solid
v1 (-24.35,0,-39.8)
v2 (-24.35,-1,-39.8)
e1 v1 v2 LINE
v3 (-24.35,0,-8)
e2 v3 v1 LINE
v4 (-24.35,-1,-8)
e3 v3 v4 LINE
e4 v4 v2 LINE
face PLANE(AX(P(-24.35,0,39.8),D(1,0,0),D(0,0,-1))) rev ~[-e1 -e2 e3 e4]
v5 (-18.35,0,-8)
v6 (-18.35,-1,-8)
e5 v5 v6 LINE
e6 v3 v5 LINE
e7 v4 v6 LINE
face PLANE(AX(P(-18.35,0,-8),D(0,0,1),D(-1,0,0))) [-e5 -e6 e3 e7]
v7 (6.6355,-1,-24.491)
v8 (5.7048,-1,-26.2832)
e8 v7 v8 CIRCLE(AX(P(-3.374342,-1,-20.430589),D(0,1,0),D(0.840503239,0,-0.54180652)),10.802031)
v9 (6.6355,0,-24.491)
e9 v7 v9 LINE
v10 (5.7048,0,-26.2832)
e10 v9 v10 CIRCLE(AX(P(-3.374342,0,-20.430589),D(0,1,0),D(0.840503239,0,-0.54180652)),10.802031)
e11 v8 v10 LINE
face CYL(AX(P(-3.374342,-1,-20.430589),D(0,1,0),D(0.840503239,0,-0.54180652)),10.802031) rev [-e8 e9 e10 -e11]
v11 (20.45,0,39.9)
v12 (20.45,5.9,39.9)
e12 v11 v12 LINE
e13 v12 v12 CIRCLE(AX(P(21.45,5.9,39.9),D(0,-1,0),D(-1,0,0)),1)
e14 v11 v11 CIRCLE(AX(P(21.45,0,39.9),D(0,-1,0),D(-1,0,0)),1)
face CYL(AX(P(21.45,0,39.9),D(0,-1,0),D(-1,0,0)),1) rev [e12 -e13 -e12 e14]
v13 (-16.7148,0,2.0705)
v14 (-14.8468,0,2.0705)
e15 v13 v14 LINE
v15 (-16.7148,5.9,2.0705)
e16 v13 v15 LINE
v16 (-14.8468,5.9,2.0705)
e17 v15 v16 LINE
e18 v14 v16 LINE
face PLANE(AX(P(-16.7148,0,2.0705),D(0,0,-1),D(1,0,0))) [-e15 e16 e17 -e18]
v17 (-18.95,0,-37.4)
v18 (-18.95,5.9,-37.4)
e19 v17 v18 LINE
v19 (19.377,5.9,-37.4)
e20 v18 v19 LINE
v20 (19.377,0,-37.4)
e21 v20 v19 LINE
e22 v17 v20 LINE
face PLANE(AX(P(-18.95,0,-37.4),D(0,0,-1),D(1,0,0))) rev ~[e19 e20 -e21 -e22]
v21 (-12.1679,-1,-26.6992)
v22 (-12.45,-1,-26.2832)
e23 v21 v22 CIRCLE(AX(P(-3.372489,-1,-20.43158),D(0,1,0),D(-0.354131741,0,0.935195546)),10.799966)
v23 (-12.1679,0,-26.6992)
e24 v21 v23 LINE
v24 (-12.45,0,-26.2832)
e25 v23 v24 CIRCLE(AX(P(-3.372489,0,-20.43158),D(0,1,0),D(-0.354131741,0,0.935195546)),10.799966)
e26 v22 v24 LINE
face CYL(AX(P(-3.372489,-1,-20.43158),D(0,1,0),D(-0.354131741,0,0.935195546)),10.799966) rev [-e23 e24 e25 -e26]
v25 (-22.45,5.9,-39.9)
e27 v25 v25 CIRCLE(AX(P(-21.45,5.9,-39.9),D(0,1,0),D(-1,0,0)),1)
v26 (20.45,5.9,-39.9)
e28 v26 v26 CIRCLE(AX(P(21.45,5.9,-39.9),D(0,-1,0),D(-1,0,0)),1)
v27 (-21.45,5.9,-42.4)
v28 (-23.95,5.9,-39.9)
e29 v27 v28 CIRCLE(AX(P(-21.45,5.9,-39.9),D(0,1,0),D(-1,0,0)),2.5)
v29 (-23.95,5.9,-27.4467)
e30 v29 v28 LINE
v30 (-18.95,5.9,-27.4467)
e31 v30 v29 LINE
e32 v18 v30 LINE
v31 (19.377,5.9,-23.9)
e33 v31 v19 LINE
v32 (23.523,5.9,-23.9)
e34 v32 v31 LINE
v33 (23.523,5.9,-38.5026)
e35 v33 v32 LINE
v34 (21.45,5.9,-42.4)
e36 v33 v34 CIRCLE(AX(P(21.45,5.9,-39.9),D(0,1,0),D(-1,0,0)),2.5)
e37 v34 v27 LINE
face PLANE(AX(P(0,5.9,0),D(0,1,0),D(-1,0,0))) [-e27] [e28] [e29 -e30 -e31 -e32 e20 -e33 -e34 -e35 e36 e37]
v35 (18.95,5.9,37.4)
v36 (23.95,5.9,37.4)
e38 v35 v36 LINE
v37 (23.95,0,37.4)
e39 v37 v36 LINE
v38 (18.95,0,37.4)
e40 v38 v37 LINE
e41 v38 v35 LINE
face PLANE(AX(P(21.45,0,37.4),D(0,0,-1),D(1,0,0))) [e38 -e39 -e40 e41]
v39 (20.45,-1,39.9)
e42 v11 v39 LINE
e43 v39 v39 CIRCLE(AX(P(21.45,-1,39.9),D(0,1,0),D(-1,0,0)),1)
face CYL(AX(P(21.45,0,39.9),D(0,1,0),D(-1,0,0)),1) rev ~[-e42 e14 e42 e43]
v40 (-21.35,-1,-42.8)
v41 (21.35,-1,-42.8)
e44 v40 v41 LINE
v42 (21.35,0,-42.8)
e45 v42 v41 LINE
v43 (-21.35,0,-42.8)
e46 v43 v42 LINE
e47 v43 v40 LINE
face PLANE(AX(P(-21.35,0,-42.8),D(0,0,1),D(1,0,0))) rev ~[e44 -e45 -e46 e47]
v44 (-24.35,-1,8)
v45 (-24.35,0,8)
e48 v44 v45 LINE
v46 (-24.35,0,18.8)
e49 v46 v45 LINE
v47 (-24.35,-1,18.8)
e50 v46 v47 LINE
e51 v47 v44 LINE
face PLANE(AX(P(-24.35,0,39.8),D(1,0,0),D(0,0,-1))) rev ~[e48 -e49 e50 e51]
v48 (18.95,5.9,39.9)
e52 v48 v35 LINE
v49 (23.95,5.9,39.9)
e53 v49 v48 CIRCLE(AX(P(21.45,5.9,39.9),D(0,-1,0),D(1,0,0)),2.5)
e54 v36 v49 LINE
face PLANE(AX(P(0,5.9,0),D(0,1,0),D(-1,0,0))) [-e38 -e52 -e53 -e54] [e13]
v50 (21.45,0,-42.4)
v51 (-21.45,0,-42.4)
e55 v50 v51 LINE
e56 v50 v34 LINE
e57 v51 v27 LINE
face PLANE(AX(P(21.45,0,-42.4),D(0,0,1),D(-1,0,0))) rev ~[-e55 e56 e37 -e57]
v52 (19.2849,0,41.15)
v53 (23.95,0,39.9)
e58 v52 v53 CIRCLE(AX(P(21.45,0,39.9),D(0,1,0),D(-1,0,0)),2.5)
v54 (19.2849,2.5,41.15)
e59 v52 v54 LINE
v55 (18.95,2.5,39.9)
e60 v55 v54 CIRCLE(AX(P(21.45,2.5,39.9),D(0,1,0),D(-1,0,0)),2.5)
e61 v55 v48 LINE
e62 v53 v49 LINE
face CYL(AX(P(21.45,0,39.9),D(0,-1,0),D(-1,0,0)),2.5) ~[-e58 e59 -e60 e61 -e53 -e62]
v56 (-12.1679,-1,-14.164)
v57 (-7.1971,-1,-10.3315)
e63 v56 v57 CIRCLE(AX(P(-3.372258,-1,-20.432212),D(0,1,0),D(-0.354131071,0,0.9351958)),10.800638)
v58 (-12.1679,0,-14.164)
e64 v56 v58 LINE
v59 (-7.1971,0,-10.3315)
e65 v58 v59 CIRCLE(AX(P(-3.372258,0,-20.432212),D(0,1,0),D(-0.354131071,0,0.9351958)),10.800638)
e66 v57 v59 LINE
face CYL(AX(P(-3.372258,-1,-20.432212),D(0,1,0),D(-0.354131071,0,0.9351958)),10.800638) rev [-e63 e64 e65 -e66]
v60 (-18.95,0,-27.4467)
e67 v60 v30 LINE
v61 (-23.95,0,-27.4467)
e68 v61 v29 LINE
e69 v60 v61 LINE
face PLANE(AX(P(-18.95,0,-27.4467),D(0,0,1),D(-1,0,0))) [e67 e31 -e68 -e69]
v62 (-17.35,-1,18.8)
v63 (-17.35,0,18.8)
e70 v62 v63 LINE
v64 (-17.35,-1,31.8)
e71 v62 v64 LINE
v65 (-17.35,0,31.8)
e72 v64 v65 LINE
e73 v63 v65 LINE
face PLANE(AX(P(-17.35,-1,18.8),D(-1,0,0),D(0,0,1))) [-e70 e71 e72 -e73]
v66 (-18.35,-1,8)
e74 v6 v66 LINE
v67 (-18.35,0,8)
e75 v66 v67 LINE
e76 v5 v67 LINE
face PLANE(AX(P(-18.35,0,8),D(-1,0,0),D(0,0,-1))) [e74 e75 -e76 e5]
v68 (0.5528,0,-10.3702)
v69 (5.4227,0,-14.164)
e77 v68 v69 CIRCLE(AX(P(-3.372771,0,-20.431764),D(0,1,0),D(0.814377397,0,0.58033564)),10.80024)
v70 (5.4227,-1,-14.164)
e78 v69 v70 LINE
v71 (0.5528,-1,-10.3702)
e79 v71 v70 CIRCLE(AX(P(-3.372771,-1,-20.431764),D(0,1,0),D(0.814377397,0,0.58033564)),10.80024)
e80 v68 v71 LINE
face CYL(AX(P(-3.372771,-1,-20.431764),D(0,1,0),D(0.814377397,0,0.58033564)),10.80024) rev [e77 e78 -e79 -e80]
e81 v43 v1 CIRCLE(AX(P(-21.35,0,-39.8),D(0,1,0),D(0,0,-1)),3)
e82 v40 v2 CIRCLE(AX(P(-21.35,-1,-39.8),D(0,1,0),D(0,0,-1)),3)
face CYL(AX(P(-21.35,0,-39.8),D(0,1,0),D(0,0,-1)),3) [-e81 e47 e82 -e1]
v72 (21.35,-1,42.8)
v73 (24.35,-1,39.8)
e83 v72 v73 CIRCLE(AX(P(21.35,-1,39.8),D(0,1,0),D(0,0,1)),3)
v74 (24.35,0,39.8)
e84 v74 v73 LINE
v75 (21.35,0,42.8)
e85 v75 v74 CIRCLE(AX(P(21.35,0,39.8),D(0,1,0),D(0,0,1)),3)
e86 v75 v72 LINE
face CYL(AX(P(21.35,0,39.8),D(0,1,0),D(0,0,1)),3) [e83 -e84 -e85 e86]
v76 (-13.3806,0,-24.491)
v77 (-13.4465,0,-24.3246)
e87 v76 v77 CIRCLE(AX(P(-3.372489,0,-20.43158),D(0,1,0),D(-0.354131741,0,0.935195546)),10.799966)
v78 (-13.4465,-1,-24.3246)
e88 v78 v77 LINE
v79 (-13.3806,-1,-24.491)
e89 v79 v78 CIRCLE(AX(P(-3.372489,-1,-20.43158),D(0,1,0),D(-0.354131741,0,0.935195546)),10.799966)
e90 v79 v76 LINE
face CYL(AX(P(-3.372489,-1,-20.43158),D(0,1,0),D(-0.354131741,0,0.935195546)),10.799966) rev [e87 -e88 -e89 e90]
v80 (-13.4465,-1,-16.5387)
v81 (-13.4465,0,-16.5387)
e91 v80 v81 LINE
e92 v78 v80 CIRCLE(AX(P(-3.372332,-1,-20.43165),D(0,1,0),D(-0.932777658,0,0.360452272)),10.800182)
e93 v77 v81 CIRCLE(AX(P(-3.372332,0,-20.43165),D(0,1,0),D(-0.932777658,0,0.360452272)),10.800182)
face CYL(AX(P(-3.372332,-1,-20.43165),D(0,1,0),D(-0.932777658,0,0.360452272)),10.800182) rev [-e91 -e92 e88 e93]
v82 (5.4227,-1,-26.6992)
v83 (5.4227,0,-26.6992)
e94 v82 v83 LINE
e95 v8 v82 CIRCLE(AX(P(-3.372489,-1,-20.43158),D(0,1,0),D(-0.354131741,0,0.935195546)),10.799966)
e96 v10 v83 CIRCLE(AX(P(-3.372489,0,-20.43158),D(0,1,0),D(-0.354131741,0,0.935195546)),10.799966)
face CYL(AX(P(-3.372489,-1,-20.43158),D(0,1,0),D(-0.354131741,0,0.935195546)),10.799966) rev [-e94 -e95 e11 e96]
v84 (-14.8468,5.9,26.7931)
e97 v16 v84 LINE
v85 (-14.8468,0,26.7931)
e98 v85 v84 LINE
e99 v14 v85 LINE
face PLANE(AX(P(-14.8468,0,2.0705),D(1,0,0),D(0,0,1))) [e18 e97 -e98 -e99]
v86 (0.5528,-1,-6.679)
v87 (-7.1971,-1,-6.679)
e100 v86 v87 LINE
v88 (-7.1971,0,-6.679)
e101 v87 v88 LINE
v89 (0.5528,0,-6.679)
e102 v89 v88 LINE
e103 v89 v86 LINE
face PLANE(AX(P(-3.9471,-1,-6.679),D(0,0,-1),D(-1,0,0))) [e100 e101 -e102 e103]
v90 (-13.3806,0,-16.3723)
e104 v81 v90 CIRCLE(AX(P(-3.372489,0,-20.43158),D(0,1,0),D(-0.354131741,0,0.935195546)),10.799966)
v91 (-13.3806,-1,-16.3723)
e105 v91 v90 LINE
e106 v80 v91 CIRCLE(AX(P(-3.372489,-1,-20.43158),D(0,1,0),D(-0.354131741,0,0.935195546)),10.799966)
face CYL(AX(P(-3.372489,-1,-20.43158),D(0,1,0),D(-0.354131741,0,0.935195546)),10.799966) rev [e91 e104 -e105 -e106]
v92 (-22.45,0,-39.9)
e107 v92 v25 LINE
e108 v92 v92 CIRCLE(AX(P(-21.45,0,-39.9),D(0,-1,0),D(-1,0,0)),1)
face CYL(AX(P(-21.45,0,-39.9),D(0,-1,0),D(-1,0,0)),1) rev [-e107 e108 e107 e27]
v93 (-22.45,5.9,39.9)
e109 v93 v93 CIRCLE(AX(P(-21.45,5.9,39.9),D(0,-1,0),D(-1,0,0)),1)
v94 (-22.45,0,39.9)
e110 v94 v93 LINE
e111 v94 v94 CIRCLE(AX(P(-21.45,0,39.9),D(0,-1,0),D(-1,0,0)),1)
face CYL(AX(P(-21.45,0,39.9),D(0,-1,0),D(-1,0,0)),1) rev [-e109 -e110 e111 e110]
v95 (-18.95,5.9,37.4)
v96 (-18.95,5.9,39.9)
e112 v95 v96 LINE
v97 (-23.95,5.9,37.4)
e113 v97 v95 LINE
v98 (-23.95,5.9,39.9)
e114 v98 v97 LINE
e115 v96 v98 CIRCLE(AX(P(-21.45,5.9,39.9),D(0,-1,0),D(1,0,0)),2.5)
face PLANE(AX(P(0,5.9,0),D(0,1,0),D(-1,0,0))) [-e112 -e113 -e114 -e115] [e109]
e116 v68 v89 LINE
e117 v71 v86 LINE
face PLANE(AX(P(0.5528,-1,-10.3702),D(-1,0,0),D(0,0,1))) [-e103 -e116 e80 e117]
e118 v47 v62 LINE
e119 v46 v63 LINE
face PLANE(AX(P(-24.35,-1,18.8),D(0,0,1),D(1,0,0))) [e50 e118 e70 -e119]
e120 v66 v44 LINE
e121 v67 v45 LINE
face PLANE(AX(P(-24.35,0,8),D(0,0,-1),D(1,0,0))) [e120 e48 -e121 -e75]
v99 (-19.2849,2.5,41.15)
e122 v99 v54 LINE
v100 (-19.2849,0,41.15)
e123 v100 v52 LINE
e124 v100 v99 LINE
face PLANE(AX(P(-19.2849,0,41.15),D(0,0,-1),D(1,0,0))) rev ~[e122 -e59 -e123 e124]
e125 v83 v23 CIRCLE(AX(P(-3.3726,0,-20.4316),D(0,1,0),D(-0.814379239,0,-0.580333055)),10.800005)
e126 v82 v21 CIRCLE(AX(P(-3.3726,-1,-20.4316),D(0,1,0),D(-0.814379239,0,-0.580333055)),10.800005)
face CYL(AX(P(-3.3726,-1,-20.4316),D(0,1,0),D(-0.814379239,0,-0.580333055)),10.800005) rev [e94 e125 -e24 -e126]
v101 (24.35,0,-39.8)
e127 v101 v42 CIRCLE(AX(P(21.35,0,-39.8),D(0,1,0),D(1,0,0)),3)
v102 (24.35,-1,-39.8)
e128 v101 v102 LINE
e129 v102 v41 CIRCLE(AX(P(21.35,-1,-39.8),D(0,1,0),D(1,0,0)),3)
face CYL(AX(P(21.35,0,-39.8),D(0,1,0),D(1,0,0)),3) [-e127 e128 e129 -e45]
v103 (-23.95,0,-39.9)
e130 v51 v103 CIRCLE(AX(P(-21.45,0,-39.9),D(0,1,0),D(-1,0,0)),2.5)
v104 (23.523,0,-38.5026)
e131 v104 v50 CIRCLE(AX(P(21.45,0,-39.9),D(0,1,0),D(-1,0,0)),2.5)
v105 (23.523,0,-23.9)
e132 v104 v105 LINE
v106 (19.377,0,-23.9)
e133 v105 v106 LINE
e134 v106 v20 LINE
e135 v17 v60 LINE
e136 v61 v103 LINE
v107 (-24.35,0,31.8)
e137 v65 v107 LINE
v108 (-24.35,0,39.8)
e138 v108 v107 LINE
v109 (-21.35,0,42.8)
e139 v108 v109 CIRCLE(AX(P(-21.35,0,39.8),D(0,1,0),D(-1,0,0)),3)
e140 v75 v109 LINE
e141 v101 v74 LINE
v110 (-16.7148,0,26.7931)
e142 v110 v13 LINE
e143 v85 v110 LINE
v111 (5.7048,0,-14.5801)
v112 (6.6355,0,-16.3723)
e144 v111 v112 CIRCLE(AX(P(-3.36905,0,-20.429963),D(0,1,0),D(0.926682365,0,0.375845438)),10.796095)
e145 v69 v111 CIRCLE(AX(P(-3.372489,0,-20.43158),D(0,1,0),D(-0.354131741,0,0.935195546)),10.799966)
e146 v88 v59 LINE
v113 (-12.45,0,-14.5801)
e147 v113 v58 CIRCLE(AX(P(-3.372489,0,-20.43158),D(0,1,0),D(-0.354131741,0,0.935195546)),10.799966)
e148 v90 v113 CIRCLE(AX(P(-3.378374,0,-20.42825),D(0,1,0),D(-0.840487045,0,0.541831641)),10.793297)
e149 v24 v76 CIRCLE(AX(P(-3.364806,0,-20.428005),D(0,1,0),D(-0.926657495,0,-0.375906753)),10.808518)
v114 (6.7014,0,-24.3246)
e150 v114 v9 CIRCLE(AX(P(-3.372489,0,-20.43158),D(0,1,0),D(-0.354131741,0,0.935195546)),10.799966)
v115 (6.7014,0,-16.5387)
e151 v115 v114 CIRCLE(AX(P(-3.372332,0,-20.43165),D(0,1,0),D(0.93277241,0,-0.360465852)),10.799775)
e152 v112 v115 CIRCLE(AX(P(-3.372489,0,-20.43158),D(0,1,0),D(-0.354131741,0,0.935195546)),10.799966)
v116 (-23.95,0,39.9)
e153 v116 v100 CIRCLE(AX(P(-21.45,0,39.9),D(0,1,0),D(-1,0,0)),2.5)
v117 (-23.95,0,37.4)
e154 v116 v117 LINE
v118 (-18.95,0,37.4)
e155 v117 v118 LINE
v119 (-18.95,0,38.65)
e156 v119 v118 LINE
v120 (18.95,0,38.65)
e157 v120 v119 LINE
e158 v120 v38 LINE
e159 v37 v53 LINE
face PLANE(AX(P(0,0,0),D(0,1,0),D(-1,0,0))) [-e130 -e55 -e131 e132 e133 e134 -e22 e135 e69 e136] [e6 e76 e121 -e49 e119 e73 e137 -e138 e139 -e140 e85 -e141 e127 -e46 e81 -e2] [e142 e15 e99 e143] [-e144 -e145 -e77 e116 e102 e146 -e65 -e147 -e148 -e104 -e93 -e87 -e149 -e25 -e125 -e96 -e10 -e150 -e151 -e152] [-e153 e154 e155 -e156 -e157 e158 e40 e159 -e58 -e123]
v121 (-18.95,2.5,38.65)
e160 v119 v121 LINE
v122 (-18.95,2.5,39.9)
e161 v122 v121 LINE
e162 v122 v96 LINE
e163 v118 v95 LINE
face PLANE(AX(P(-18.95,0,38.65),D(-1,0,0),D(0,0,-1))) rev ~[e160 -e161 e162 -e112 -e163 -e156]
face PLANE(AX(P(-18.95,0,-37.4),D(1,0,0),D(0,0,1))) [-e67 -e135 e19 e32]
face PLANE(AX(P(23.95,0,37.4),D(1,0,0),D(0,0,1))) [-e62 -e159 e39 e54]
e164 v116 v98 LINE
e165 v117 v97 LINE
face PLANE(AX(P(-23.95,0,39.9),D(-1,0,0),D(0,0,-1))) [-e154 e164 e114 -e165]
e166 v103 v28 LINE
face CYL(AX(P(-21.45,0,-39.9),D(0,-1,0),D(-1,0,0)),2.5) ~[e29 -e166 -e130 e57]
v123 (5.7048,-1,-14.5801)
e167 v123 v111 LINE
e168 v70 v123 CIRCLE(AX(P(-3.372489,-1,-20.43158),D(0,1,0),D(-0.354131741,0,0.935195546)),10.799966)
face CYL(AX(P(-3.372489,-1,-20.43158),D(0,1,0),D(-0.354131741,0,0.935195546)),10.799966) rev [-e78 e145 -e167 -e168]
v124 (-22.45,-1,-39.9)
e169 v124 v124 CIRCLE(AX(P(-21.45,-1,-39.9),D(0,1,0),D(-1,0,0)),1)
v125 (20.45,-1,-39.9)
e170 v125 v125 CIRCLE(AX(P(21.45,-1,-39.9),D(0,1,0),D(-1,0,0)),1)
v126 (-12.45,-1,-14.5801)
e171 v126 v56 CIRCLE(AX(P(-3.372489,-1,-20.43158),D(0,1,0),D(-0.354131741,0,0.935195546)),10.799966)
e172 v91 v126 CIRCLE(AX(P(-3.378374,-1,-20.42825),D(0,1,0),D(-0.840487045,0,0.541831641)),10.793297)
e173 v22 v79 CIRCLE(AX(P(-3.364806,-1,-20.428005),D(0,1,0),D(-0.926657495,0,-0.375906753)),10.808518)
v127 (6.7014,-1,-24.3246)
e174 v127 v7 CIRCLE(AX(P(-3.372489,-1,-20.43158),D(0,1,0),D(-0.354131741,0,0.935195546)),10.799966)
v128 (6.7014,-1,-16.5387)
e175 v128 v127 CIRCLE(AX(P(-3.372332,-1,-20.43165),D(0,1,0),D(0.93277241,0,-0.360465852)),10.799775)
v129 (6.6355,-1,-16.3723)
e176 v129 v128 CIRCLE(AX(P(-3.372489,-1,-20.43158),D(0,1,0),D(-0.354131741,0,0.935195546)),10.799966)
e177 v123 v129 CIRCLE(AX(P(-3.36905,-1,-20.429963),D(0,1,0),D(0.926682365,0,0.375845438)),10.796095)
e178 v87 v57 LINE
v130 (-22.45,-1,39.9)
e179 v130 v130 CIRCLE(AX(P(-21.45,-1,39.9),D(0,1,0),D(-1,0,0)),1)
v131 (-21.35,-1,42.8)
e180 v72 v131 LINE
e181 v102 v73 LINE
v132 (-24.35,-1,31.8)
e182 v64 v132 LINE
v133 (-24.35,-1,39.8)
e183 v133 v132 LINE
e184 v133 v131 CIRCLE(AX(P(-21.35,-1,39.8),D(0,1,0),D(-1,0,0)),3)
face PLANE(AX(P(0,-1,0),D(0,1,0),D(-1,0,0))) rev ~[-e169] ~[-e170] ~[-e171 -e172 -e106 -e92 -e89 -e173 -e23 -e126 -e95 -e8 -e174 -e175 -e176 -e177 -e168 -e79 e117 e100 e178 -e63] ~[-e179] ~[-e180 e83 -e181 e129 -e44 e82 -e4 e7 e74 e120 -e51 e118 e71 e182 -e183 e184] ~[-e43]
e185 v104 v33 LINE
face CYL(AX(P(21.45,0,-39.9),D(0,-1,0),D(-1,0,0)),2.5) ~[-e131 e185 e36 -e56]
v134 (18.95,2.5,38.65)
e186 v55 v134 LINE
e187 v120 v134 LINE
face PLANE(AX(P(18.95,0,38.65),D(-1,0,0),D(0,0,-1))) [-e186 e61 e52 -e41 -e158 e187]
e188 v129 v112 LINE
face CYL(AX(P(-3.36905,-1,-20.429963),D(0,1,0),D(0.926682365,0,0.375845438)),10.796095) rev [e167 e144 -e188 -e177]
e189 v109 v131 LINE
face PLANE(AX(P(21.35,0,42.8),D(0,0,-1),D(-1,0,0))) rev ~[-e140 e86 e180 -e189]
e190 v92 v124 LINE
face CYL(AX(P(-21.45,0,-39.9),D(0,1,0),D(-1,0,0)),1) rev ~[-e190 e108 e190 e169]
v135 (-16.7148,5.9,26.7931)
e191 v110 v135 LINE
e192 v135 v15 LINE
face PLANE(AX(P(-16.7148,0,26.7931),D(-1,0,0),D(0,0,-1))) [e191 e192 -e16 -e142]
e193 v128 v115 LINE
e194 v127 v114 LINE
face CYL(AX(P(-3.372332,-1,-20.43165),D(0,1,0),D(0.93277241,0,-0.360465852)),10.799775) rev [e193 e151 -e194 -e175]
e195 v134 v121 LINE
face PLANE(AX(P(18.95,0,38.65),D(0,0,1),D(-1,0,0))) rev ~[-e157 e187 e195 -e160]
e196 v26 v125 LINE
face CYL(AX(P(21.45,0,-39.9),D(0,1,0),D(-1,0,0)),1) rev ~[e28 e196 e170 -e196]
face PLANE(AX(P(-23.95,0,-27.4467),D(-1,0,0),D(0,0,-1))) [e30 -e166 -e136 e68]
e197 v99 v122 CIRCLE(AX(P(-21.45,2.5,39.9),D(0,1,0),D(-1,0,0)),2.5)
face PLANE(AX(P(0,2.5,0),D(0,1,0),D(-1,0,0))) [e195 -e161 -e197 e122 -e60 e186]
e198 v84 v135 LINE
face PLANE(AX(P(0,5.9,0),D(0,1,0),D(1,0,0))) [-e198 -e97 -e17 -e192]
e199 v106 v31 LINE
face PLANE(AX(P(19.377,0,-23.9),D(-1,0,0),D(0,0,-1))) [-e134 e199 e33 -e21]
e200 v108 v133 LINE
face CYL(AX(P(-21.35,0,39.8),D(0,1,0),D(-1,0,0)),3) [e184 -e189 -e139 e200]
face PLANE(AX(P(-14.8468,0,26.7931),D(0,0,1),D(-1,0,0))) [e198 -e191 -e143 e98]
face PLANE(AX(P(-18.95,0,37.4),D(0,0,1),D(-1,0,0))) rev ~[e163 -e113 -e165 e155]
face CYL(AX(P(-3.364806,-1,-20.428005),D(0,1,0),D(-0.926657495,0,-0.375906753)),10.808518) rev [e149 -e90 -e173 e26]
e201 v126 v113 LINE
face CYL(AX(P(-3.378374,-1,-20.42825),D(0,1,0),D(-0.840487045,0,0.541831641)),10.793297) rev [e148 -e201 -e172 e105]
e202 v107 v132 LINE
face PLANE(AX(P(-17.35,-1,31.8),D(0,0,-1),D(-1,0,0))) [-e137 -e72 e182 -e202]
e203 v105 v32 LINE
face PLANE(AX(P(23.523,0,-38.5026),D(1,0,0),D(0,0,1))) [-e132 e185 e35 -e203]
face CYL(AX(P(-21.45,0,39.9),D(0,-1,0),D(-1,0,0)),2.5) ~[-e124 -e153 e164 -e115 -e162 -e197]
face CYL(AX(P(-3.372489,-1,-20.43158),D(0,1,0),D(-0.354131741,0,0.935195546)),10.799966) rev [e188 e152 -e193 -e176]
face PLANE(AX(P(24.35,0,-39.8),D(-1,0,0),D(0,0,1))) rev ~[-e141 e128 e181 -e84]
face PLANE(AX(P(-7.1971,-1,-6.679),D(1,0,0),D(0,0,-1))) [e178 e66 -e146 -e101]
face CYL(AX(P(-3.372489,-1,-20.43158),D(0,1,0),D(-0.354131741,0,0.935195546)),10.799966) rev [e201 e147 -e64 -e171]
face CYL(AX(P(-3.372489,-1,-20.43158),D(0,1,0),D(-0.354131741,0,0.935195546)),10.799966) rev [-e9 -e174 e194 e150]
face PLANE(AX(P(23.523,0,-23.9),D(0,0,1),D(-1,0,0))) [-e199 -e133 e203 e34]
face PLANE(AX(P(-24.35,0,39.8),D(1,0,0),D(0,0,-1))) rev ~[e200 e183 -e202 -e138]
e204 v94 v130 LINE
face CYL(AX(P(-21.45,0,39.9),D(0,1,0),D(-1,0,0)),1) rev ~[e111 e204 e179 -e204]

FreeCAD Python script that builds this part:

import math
import FreeCAD as App
import Part
import Sketcher

V = App.Vector


def add_polygon(sketch, points):
    """Adds a closed chain of lines whose ends are joined by coincident constraints."""
    first, n = sketch.GeometryCount, len(points)
    for a, b in zip(points, points[1:] + points[:1]):
        sketch.addGeometry(Part.LineSegment(App.Vector(*a, 0), App.Vector(*b, 0)), False)
    for i in range(n):
        sketch.addConstraint(Sketcher.Constraint("Coincident", first + i, 2, first + (i + 1) % n, 1))

doc = App.newDocument("Part")
body = doc.addObject("PartDesign::Body", "Body")

sketch1 = body.newObject("Sketcher::SketchObject", "Sketch")
sketch1.AttachmentSupport = (doc.getObject("XZ_Plane"), [""])
sketch1.MapMode = "FlatFace"
sketch1.addGeometry([
    Part.LineSegment(V(-21.35, 42.8, 0), V(21.35, 42.8, 0)),
    Part.ArcOfCircle(Part.Circle(V(21.35, 39.8, 0), V(0, 0, 1), 3), math.radians(0), math.radians(90)),
    Part.LineSegment(V(24.35, 39.8, 0), V(24.35, -39.8, 0)),
    Part.ArcOfCircle(Part.Circle(V(21.35, -39.8, 0), V(0, 0, 1), 3), math.radians(-90), math.radians(0)),
    Part.LineSegment(V(21.35, -42.8, 0), V(-21.35, -42.8, 0)),
    Part.ArcOfCircle(Part.Circle(V(-21.35, -39.8, 0), V(0, 0, 1), 3), math.radians(180), math.radians(270)),
    Part.LineSegment(V(-24.35, -39.8, 0), V(-24.35, 39.8, 0)),
    Part.ArcOfCircle(Part.Circle(V(-21.35, 39.8, 0), V(0, 0, 1), 3), math.radians(90), math.radians(180)),
], False)
sketch1.addConstraint([
    Sketcher.Constraint("Tangent", 0, 2, 1, 2),
    Sketcher.Constraint("Tangent", 1, 1, 2, 1),
    Sketcher.Constraint("Tangent", 2, 2, 3, 2),
    Sketcher.Constraint("Tangent", 3, 1, 4, 1),
    Sketcher.Constraint("Tangent", 4, 2, 5, 2),
    Sketcher.Constraint("Tangent", 5, 1, 6, 1),
    Sketcher.Constraint("Tangent", 6, 2, 7, 2),
    Sketcher.Constraint("Tangent", 7, 1, 0, 1),
    Sketcher.Constraint("Horizontal", 0),
    Sketcher.Constraint("Vertical", 2),
    Sketcher.Constraint("Horizontal", 4),
    Sketcher.Constraint("Vertical", 6),
    Sketcher.Constraint("Equal", 1, 3),
    Sketcher.Constraint("Equal", 3, 5),
    Sketcher.Constraint("Equal", 5, 7),
    Sketcher.Constraint("Symmetric", 1, 3, 5, 3, -1, 1),
    Sketcher.Constraint("Radius", 1, 3.0),
    Sketcher.Constraint("DistanceX", 0, 1, 0, 2, 42.7),
    Sketcher.Constraint("DistanceY", 2, 2, 2, 1, 79.6),
])
pad1 = body.newObject("PartDesign::Pad", "Pad")
pad1.Profile = sketch1
pad1.Length = 1

sketch2 = body.newObject("Sketcher::SketchObject", "Sketch001")
sketch2.AttachmentSupport = (doc.getObject("XZ_Plane"), [""])
sketch2.MapMode = "FlatFace"
sketch2.addGeometry([
    Part.ArcOfCircle(Part.Circle(V(-21.45, 39.9, 0), V(0, 0, 1), 2.5), math.radians(0), math.radians(29.999582)),
    Part.LineSegment(V(-19.2849, 41.15, 0), V(19.2849, 41.15, 0)),
    Part.ArcOfCircle(Part.Circle(V(21.45, 39.9, 0), V(0, 0, 1), 2.5), math.radians(150.000418), math.radians(180)),
    Part.LineSegment(V(18.95, 39.9, 0), V(18.95, 38.65, 0)),
    Part.LineSegment(V(18.95, 38.65, 0), V(-18.95, 38.65, 0)),
    Part.LineSegment(V(-18.95, 38.65, 0), V(-18.95, 39.9, 0)),
], False)
sketch2.addConstraint([
    Sketcher.Constraint("Coincident", 0, 2, 1, 1),
    Sketcher.Constraint("Coincident", 1, 2, 2, 1),
    Sketcher.Constraint("Tangent", 2, 2, 3, 1),
    Sketcher.Constraint("Coincident", 3, 2, 4, 1),
    Sketcher.Constraint("Coincident", 4, 2, 5, 1),
    Sketcher.Constraint("Tangent", 5, 2, 0, 1),
    Sketcher.Constraint("Horizontal", 1),
    Sketcher.Constraint("Vertical", 3),
    Sketcher.Constraint("Horizontal", 4),
    Sketcher.Constraint("Vertical", 5),
    Sketcher.Constraint("Equal", 0, 2),
    Sketcher.Constraint("Symmetric", 0, 3, 2, 3, -2),
    Sketcher.Constraint("Radius", 0, 2.5),
    Sketcher.Constraint("DistanceY", 3, 2, 1, 2, 2.5),
    Sketcher.Constraint("DistanceX", 4, 2, 4, 1, 37.9),
    Sketcher.Constraint("DistanceY", 3, 2, 3, 1, 1.25),
    Sketcher.Constraint("DistanceY", -1, 1, 0, 3, 39.9),
])
pad2 = body.newObject("PartDesign::Pad", "Pad001")
pad2.Profile = sketch2
pad2.Length = 2.5
pad2.Reversed = True

sketch3 = body.newObject("Sketcher::SketchObject", "Sketch002")
sketch3.AttachmentSupport = (doc.getObject("XZ_Plane"), [""])
sketch3.MapMode = "FlatFace"
sketch3.addGeometry([
    Part.ArcOfCircle(Part.Circle(V(-21.45, 39.9, 0), V(0, 0, 1), 2.5), math.radians(0), math.radians(180)),
    Part.LineSegment(V(-18.95, 39.9, 0), V(-18.95, 37.4, 0)),
    Part.LineSegment(V(-18.95, 37.4, 0), V(-23.95, 37.4, 0)),
    Part.LineSegment(V(-23.95, 37.4, 0), V(-23.95, 39.9, 0)),
    Part.Circle(V(-21.45, 39.9, 0), V(0, 0, 1), 1),
    Part.ArcOfCircle(Part.Circle(V(21.45, 39.9, 0), V(0, 0, 1), 2.5), math.radians(0), math.radians(180)),
    Part.LineSegment(V(23.95, 39.9, 0), V(23.95, 37.4, 0)),
    Part.LineSegment(V(23.95, 37.4, 0), V(18.95, 37.4, 0)),
    Part.LineSegment(V(18.95, 37.4, 0), V(18.95, 39.9, 0)),
    Part.Circle(V(21.45, 39.9, 0), V(0, 0, 1), 1),
], False)
sketch3.addConstraint([
    Sketcher.Constraint("Tangent", 0, 1, 1, 1),
    Sketcher.Constraint("Coincident", 1, 2, 2, 1),
    Sketcher.Constraint("Coincident", 2, 2, 3, 1),
    Sketcher.Constraint("Tangent", 3, 2, 0, 2),
    Sketcher.Constraint("Tangent", 5, 1, 6, 1),
    Sketcher.Constraint("Coincident", 6, 2, 7, 1),
    Sketcher.Constraint("Coincident", 7, 2, 8, 1),
    Sketcher.Constraint("Tangent", 8, 2, 5, 2),
    Sketcher.Constraint("Vertical", 1),
    Sketcher.Constraint("Horizontal", 2),
    Sketcher.Constraint("Vertical", 3),
    Sketcher.Constraint("Vertical", 6),
    Sketcher.Constraint("Horizontal", 7),
    Sketcher.Constraint("Vertical", 8),
    Sketcher.Constraint("Coincident", 4, 3, 0, 3),
    Sketcher.Constraint("Coincident", 9, 3, 5, 3),
    Sketcher.Constraint("Equal", 0, 5),
    Sketcher.Constraint("Equal", 4, 9),
    Sketcher.Constraint("Symmetric", 0, 3, 5, 3, -2),
    Sketcher.Constraint("Horizontal", 2, 2, 6, 2),
    Sketcher.Constraint("Diameter", 4, 2.0),
    Sketcher.Constraint("Radius", 0, 2.5),
    Sketcher.Constraint("DistanceY", 1, 2, 1, 1, 2.5),
    Sketcher.Constraint("DistanceY", -1, 1, 0, 3, 39.9),
    Sketcher.Constraint("DistanceX", 0, 3, 5, 3, 42.9),
])
pad3 = body.newObject("PartDesign::Pad", "Pad002")
pad3.Profile = sketch3
pad3.Length = 5.9
pad3.Reversed = True

sketch4 = body.newObject("Sketcher::SketchObject", "Sketch003")
sketch4.AttachmentSupport = (doc.getObject("XZ_Plane"), [""])
sketch4.MapMode = "FlatFace"
sketch4.addGeometry([
    Part.ArcOfCircle(Part.Circle(V(-21.45, -39.9, 0), V(0, 0, 1), 2.5), math.radians(180), math.radians(270)),
    Part.LineSegment(V(-23.95, -39.9, 0), V(-23.95, -27.4467, 0)),
    Part.LineSegment(V(-23.95, -27.4467, 0), V(-18.95, -27.4467, 0)),
    Part.LineSegment(V(-18.95, -27.4467, 0), V(-18.95, -37.4, 0)),
    Part.LineSegment(V(-18.95, -37.4, 0), V(19.377, -37.4, 0)),
    Part.LineSegment(V(19.377, -37.4, 0), V(19.377, -23.9, 0)),
    Part.LineSegment(V(19.377, -23.9, 0), V(23.523, -23.9, 0)),
    Part.LineSegment(V(23.523, -23.9, 0), V(23.523, -38.5026, 0)),
    Part.ArcOfCircle(Part.Circle(V(21.45, -39.9, 0), V(0, 0, 1), 2.5), math.radians(-90), math.radians(33.983733)),
    Part.LineSegment(V(21.45, -42.4, 0), V(-21.45, -42.4, 0)),
    Part.Circle(V(-21.45, -39.9, 0), V(0, 0, 1), 1),
    Part.Circle(V(21.45, -39.9, 0), V(0, 0, 1), 1),
], False)
sketch4.addConstraint([
    Sketcher.Constraint("Tangent", 0, 1, 1, 1),
    Sketcher.Constraint("Coincident", 1, 2, 2, 1),
    Sketcher.Constraint("Coincident", 2, 2, 3, 1),
    Sketcher.Constraint("Coincident", 3, 2, 4, 1),
    Sketcher.Constraint("Coincident", 4, 2, 5, 1),
    Sketcher.Constraint("Coincident", 5, 2, 6, 1),
    Sketcher.Constraint("Coincident", 6, 2, 7, 1),
    Sketcher.Constraint("Coincident", 7, 2, 8, 2),
    Sketcher.Constraint("Tangent", 8, 1, 9, 1),
    Sketcher.Constraint("Tangent", 9, 2, 0, 2),
    Sketcher.Constraint("Vertical", 1),
    Sketcher.Constraint("Horizontal", 2),
    Sketcher.Constraint("Vertical", 3),
    Sketcher.Constraint("Horizontal", 4),
    Sketcher.Constraint("Vertical", 5),
    Sketcher.Constraint("Horizontal", 6),
    Sketcher.Constraint("Vertical", 7),
    Sketcher.Constraint("Horizontal", 9),
    Sketcher.Constraint("Coincident", 10, 3, 0, 3),
    Sketcher.Constraint("Coincident", 11, 3, 8, 3),
    Sketcher.Constraint("Equal", 0, 8),
    Sketcher.Constraint("Equal", 10, 11),
    Sketcher.Constraint("Diameter", 10, 2.0),
    Sketcher.Constraint("DistanceY", 8, 3, 5, 2, 16.0),
    Sketcher.Constraint("Radius", 0, 2.5),
    Sketcher.Constraint("DistanceX", 2, 1, 2, 2, 5.0),
    Sketcher.Constraint("DistanceX", 9, 2, 9, 1, 42.9),
    Sketcher.Constraint("DistanceY", 5, 1, 5, 2, 13.5),
    Sketcher.Constraint("DistanceY", 0, 3, -1, 1, 39.9),
    Sketcher.Constraint("DistanceX", 4, 1, 4, 2, 38.327),
    Sketcher.Constraint("DistanceX", 6, 1, 6, 2, 4.146),
    Sketcher.Constraint("DistanceX", 0, 3, -1, 1, 21.45),
    Sketcher.Constraint("DistanceY", 1, 1, 1, 2, 12.4533),
])
pad4 = body.newObject("PartDesign::Pad", "Pad003")
pad4.Profile = sketch4
pad4.Length = 5.9
pad4.Reversed = True

sketch5 = body.newObject("Sketcher::SketchObject", "Sketch004")
sketch5.AttachmentSupport = (doc.getObject("XZ_Plane"), [""])
sketch5.MapMode = "FlatFace"
sketch5.addGeometry([
    Part.Circle(V(-21.45, -39.9, 0), V(0, 0, 1), 1),
    Part.Circle(V(21.45, -39.9, 0), V(0, 0, 1), 1),
], False)
sketch5.addConstraint([
    Sketcher.Constraint("Equal", 0, 1),
    Sketcher.Constraint("Symmetric", 0, 3, 1, 3, -2),
    Sketcher.Constraint("Diameter", 0, 2.0),
    Sketcher.Constraint("DistanceY", 0, 3, -1, 1, 39.9),
    Sketcher.Constraint("DistanceX", 0, 3, 1, 3, 42.9),
])
pocket1 = body.newObject("PartDesign::Pocket", "Pocket")
pocket1.Profile = sketch5
pocket1.Type = "ThroughAll"
pocket1.Midplane = True

sketch6 = body.newObject("Sketcher::SketchObject", "Sketch005")
sketch6.AttachmentSupport = (doc.getObject("XZ_Plane"), [""])
sketch6.MapMode = "FlatFace"
sketch6.addGeometry([
    Part.Circle(V(-21.45, 39.9, 0), V(0, 0, 1), 1),
    Part.Circle(V(21.45, 39.9, 0), V(0, 0, 1), 1),
], False)
sketch6.addConstraint([
    Sketcher.Constraint("Equal", 0, 1),
    Sketcher.Constraint("Symmetric", 0, 3, 1, 3, -2),
    Sketcher.Constraint("Diameter", 0, 2.0),
    Sketcher.Constraint("DistanceY", -1, 1, 0, 3, 39.9),
    Sketcher.Constraint("DistanceX", 0, 3, 1, 3, 42.9),
])
pocket2 = body.newObject("PartDesign::Pocket", "Pocket001")
pocket2.Profile = sketch6
pocket2.Type = "ThroughAll"
pocket2.Midplane = True

sketch7 = body.newObject("Sketcher::SketchObject", "Sketch006")
sketch7.AttachmentSupport = (doc.getObject("XZ_Plane"), [""])
sketch7.MapMode = "FlatFace"
add_polygon(sketch7, [(-24.35, 8), (-18.35, 8), (-18.35, -8), (-24.35, -8)])
sketch7.addConstraint([
    Sketcher.Constraint("Horizontal", 0),
    Sketcher.Constraint("Vertical", 1),
    Sketcher.Constraint("Horizontal", 2),
    Sketcher.Constraint("Vertical", 3),
    Sketcher.Constraint("DistanceX", 0, 1, 0, 2, 6.0),
    Sketcher.Constraint("DistanceY", 1, 2, 1, 1, 16.0),
    Sketcher.Constraint("DistanceY", -1, 1, 0, 2, 8.0),
    Sketcher.Constraint("DistanceX", 0, 2, -1, 1, 18.35),
])
pocket3 = body.newObject("PartDesign::Pocket", "Pocket002")
pocket3.Profile = sketch7
pocket3.Type = "ThroughAll"
pocket3.Midplane = True

sketch8 = body.newObject("Sketcher::SketchObject", "Sketch007")
sketch8.AttachmentSupport = (doc.getObject("XZ_Plane"), [""])
sketch8.MapMode = "FlatFace"
sketch8.AttachmentOffset = App.Placement(V(0, 0, 1), App.Rotation())
sketch8.addGeometry([
    Part.ArcOfCircle(Part.Circle(V(-3.3726, -20.4316, 0), V(0, 0, 1), 10.799965), math.radians(32.806755), math.radians(35.473971)),
    Part.ArcOfCircle(Part.Circle(V(-3.3726, -20.4316, 0), V(0, 0, 1), 10.800043), math.radians(35.473971), math.radians(68.68703)),
    Part.LineSegment(V(0.5528, -10.3702, 0), V(0.5528, -6.679, 0)),
    Part.LineSegment(V(0.5528, -6.679, 0), V(-7.1971, -6.679, 0)),
    Part.LineSegment(V(-7.1971, -6.679, 0), V(-7.1971, -10.3315, 0)),
    Part.ArcOfCircle(Part.Circle(V(-3.3726, -20.4316, 0), V(0, 0, 1), 10.800043), math.radians(110.739653), math.radians(144.526029)),
    Part.ArcOfCircle(Part.Circle(V(-3.3726, -20.4316, 0), V(0, 0, 1), 10.799965), math.radians(144.526029), math.radians(147.193245)),
    Part.ArcOfCircle(Part.Circle(V(-3.378374, -20.42825, 0), V(0, 0, 1), 10.793297), math.radians(147.191586), math.radians(157.927215)),
    Part.ArcOfCircle(Part.Circle(V(-3.3726, -20.4316, 0), V(0, 0, 1), 10.799965), math.radians(157.922254), math.radians(158.871761)),
    Part.ArcOfCircle(Part.Circle(V(-3.3726, -20.4316, 0), V(0, 0, 1), 10.800043), math.radians(158.871761), math.radians(201.128734)),
    Part.ArcOfCircle(Part.Circle(V(-3.3726, -20.4316, 0), V(0, 0, 1), 10.799965), math.radians(-158.871266), math.radians(-157.921762)),
    Part.ArcOfCircle(Part.Circle(V(-3.364806, -20.428005, 0), V(0, 0, 1), 10.808518), math.radians(-157.919633), math.radians(-147.199168)),
    Part.ArcOfCircle(Part.Circle(V(-3.3726, -20.4316, 0), V(0, 0, 1), 10.799965), math.radians(-147.192799), math.radians(-144.526029)),
    Part.ArcOfCircle(Part.Circle(V(-3.3726, -20.4316, 0), V(0, 0, 1), 10.800005), math.radians(-144.526029), math.radians(-35.473971)),
    Part.ArcOfCircle(Part.Circle(V(-3.3726, -20.4316, 0), V(0, 0, 1), 10.799965), math.radians(-35.473971), math.radians(-32.807201)),
    Part.ArcOfCircle(Part.Circle(V(-3.374342, -20.430589, 0), V(0, 0, 1), 10.802031), math.radians(-32.806701), math.radians(-22.079534)),
    Part.ArcOfCircle(Part.Circle(V(-3.3726, -20.4316, 0), V(0, 0, 1), 10.799965), math.radians(-22.078038), math.radians(-21.128543)),
    Part.ArcOfCircle(Part.Circle(V(-3.3726, -20.4316, 0), V(0, 0, 1), 10.799914), math.radians(-21.128543), math.radians(21.128048)),
    Part.ArcOfCircle(Part.Circle(V(-3.3726, -20.4316, 0), V(0, 0, 1), 10.799965), math.radians(21.128048), math.radians(22.077547)),
    Part.ArcOfCircle(Part.Circle(V(-3.36905, -20.429963, 0), V(0, 0, 1), 10.796095), math.radians(22.076576), math.radians(32.809659)),
], False)
sketch8.addConstraint([
    Sketcher.Constraint("Coincident", 0, 2, 1, 1),
    Sketcher.Constraint("Coincident", 1, 2, 2, 1),
    Sketcher.Constraint("Coincident", 2, 2, 3, 1),
    Sketcher.Constraint("Coincident", 3, 2, 4, 1),
    Sketcher.Constraint("Coincident", 4, 2, 5, 1),
    Sketcher.Constraint("Coincident", 5, 2, 6, 1),
    Sketcher.Constraint("Coincident", 6, 2, 7, 1),
    Sketcher.Constraint("Coincident", 7, 2, 8, 1),
    Sketcher.Constraint("Coincident", 8, 2, 9, 1),
    Sketcher.Constraint("Coincident", 9, 2, 10, 1),
    Sketcher.Constraint("Coincident", 10, 2, 11, 1),
    Sketcher.Constraint("Coincident", 11, 2, 12, 1),
    Sketcher.Constraint("Coincident", 12, 2, 13, 1),
    Sketcher.Constraint("Coincident", 13, 2, 14, 1),
    Sketcher.Constraint("Coincident", 14, 2, 15, 1),
    Sketcher.Constraint("Coincident", 15, 2, 16, 1),
    Sketcher.Constraint("Coincident", 16, 2, 17, 1),
    Sketcher.Constraint("Coincident", 17, 2, 18, 1),
    Sketcher.Constraint("Coincident", 18, 2, 19, 1),
    Sketcher.Constraint("Coincident", 19, 2, 0, 1),
    Sketcher.Constraint("Vertical", 2),
    Sketcher.Constraint("Horizontal", 3),
    Sketcher.Constraint("Vertical", 4),
    Sketcher.Constraint("Coincident", 1, 3, 0, 3),
    Sketcher.Constraint("Coincident", 5, 3, 0, 3),
    Sketcher.Constraint("Coincident", 6, 3, 0, 3),
    Sketcher.Constraint("Coincident", 8, 3, 0, 3),
    Sketcher.Constraint("Coincident", 9, 3, 0, 3),
    Sketcher.Constraint("Coincident", 10, 3, 0, 3),
    Sketcher.Constraint("Coincident", 12, 3, 0, 3),
    Sketcher.Constraint("Coincident", 13, 3, 0, 3),
    Sketcher.Constraint("Coincident", 14, 3, 0, 3),
    Sketcher.Constraint("Coincident", 16, 3, 0, 3),
    Sketcher.Constraint("Coincident", 17, 3, 0, 3),
    Sketcher.Constraint("Coincident", 18, 3, 0, 3),
    Sketcher.Constraint("Radius", 0, 10.8),
    Sketcher.Constraint("Radius", 5, 10.8),
    Sketcher.Constraint("Radius", 8, 10.8),
    Sketcher.Constraint("Radius", 12, 10.8),
    Sketcher.Constraint("Radius", 16, 10.8),
    Sketcher.Constraint("Radius", 15, 10.802),
    Sketcher.Constraint("Radius", 19, 10.796),
    Sketcher.Constraint("DistanceX", 3, 2, 3, 1, 7.75),
    Sketcher.Constraint("Radius", 7, 10.7933),
    Sketcher.Constraint("Radius", 11, 10.8085),
    Sketcher.Constraint("DistanceY", 19, 3, -1, 1, 20.43),
    Sketcher.Constraint("DistanceX", 6, 2, -1, 1, 12.45),
    Sketcher.Constraint("DistanceY", 6, 2, -1, 1, 14.58),
    Sketcher.Constraint("DistanceX", 11, 2, -1, 1, 12.45),
    Sketcher.Constraint("DistanceY", 19, 2, -1, 1, 14.58),
    Sketcher.Constraint("DistanceY", 19, 2, 1, 2, 4.21),
    Sketcher.Constraint("DistanceY", 2, 1, 2, 2, 3.6912),
    Sketcher.Constraint("DistanceY", 0, 2, -1, 1, 14.164),
    Sketcher.Constraint("DistanceX", 5, 2, -1, 1, 12.168),
    Sketcher.Constraint("DistanceY", 10, 2, -1, 1, 24.491),
    Sketcher.Constraint("DistanceY", 15, 2, -1, 1, 24.491),
    Sketcher.Constraint("DistanceY", 7, 3, 7, 2, 4.056),
    Sketcher.Constraint("DistanceX", 8, 2, 7, 2, 0.066),
    Sketcher.Constraint("DistanceY", 9, 2, 8, 2, 7.786),
    Sketcher.Constraint("DistanceY", 12, 2, 11, 2, 0.416),
    Sketcher.Constraint("DistanceX", 13, 2, 14, 2, 0.282),
    Sketcher.Constraint("DistanceY", 13, 2, 14, 2, 0.416),
    Sketcher.Constraint("DistanceX", -1, 1, 16, 2, 6.7013),
    Sketcher.Constraint("DistanceX", -1, 1, 17, 2, 6.7013),
    Sketcher.Constraint("DistanceX", -1, 1, 18, 2, 6.6355),
])
pocket4 = body.newObject("PartDesign::Pocket", "Pocket003")
pocket4.Profile = sketch8
pocket4.Type = "ThroughAll"
pocket4.Midplane = True

sketch9 = body.newObject("Sketcher::SketchObject", "Sketch008")
sketch9.AttachmentSupport = (doc.getObject("XZ_Plane"), [""])
sketch9.MapMode = "FlatFace"
sketch9.AttachmentOffset = App.Placement(V(0, 0, 1), App.Rotation())
add_polygon(sketch9, [(-17.35, 31.8), (-24.35, 31.8), (-24.35, 18.8), (-17.35, 18.8)])
sketch9.addConstraint([
    Sketcher.Constraint("Horizontal", 0),
    Sketcher.Constraint("Vertical", 1),
    Sketcher.Constraint("Horizontal", 2),
    Sketcher.Constraint("Vertical", 3),
    Sketcher.Constraint("DistanceX", 0, 2, 0, 1, 7.0),
    Sketcher.Constraint("DistanceY", 1, 2, 1, 1, 13.0),
    Sketcher.Constraint("DistanceY", -1, 1, 0, 2, 31.8),
    Sketcher.Constraint("DistanceX", 0, 2, -1, 1, 24.35),
])
pocket5 = body.newObject("PartDesign::Pocket", "Pocket004")
pocket5.Profile = sketch9
pocket5.Type = "ThroughAll"
pocket5.Midplane = True

sketch10 = body.newObject("Sketcher::SketchObject", "Sketch009")
sketch10.AttachmentSupport = (doc.getObject("XZ_Plane"), [""])
sketch10.MapMode = "FlatFace"
add_polygon(sketch10, [(-16.7148, 26.7931), (-14.8468, 26.7931), (-14.8468, 2.0705), (-16.7148, 2.0705)])
sketch10.addConstraint([
    Sketcher.Constraint("Horizontal", 0),
    Sketcher.Constraint("Vertical", 1),
    Sketcher.Constraint("Horizontal", 2),
    Sketcher.Constraint("Vertical", 3),
    Sketcher.Constraint("DistanceX", 0, 1, 0, 2, 1.868),
    Sketcher.Constraint("DistanceY", 1, 2, 1, 1, 24.7226),
    Sketcher.Constraint("DistanceY", -1, 1, 0, 2, 26.793),
    Sketcher.Constraint("DistanceX", 0, 2, -1, 1, 14.8468),
])
pad5 = body.newObject("PartDesign::Pad", "Pad004")
pad5.Profile = sketch10
pad5.Length = 5.9
pad5.Reversed = True

doc.recompute()
